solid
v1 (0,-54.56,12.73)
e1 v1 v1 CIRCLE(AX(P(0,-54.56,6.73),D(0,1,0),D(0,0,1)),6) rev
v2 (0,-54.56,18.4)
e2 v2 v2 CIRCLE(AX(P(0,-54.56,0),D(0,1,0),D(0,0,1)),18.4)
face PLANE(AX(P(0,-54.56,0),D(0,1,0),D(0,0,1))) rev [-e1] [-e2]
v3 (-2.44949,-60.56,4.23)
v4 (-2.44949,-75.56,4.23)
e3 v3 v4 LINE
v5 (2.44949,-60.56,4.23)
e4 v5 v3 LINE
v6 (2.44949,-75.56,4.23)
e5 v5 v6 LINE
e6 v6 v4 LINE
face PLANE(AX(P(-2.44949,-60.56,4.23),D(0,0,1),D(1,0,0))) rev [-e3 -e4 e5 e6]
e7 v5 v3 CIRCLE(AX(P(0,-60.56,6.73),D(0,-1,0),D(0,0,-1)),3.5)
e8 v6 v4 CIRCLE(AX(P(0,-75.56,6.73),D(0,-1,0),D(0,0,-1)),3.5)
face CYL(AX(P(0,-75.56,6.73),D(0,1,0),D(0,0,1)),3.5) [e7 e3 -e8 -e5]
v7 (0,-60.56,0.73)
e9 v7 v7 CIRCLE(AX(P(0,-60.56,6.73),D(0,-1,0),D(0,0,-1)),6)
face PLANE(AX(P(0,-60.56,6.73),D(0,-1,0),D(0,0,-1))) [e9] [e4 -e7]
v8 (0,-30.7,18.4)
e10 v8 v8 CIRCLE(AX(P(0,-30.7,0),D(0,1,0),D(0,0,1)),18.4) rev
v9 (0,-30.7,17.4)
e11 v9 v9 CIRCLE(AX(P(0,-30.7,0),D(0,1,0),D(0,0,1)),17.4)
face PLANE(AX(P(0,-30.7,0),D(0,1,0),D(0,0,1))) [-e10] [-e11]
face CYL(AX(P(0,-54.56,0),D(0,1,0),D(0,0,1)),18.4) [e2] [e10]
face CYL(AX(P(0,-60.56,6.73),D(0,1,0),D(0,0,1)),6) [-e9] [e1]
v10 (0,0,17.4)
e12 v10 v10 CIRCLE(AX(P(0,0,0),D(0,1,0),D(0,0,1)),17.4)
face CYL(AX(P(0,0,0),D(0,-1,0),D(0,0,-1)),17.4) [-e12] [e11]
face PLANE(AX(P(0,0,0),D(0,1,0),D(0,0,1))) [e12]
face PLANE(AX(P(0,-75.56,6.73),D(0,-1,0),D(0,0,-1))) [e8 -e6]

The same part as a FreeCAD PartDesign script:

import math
import FreeCAD as App
import Part
import Sketcher

doc = App.newDocument("Part")
params = doc.addObject("Spreadsheet::Sheet", "Params")
for row, (alias, value) in enumerate([
    ("sketch1_diameter", "36.8 mm"),
    ("pad1_length", "54.56 mm"),
    ("sketch2_diameter", "12 mm"),
    ("pad2_length", "6 mm"),
    ("sketch3_diameter", "7 mm"),
    ("pad3_length", "15 mm"),
    ("sketch4_radius", "3.5 mm"),
    ("pocket1_length", "15 mm"),
    ("pocket2_length", "30.7 mm"),
    ("sketch6_diameter", "34.8 mm"),
    ("pad4_length", "30.7 mm"),
], start=1):
    params.set(f"A{row}", alias)
    params.set(f"B{row}", "=" + value)
    params.setAlias(f"B{row}", alias)

body = doc.addObject("PartDesign::Body", "Body")

# Sketch on XZ plane
sketch1 = doc.addObject("Sketcher::SketchObject", "Sketch")
body.addObject(sketch1)
sketch1.AttachmentSupport = (doc.XZ_Plane, [""])
sketch1.MapMode = "FlatFace"
sketch1.addGeometry(Part.Circle(App.Vector(0, 0, 0), App.Vector(0, 0, 1), 18), False)
sketch1.addConstraint(Sketcher.Constraint("Coincident", 0, 3, -1, 1))
sketch1.addConstraint(Sketcher.Constraint("Diameter", 0, 36.8))
sketch1.setExpression("Constraints[1]", "Params.sketch1_diameter")
pad1 = doc.addObject("PartDesign::Pad", "Pad")
body.addObject(pad1)
pad1.Profile = sketch1
pad1.setExpression("Length", "Params.pad1_length")

# Sketch on XZ plane
sketch2 = doc.addObject("Sketcher::SketchObject", "Sketch001")
body.addObject(sketch2)
sketch2.AttachmentSupport = (doc.XZ_Plane, [""])
sketch2.MapMode = "FlatFace"
sketch2.AttachmentOffset = App.Placement(App.Vector(0, 0, 54.56), App.Rotation())
sketch2.addGeometry(Part.Circle(App.Vector(0, 7, 0), App.Vector(0, 0, 1), 6), False)
sketch2.addConstraint(Sketcher.Constraint("PointOnObject", 0, 3, -2))
sketch2.addConstraint(Sketcher.Constraint("Diameter", 0, 12.0))
sketch2.addConstraint(Sketcher.Constraint("DistanceY", -1, 1, 0, 3, 6.73))
sketch2.setExpression("Constraints[1]", "Params.sketch2_diameter")
pad2 = doc.addObject("PartDesign::Pad", "Pad001")
body.addObject(pad2)
pad2.Profile = sketch2
pad2.setExpression("Length", "Params.pad2_length")

# Sketch on XZ plane
sketch3 = doc.addObject("Sketcher::SketchObject", "Sketch002")
body.addObject(sketch3)
sketch3.AttachmentSupport = (doc.XZ_Plane, [""])
sketch3.MapMode = "FlatFace"
sketch3.AttachmentOffset = App.Placement(App.Vector(0, 0, 60.56), App.Rotation())
sketch3.addGeometry(Part.Circle(App.Vector(0, 6.7, 0), App.Vector(0, 0, 1), 3.5), False)
sketch3.addConstraint(Sketcher.Constraint("PointOnObject", 0, 3, -2))
sketch3.addConstraint(Sketcher.Constraint("Diameter", 0, 7.0))
sketch3.addConstraint(Sketcher.Constraint("DistanceY", -1, 1, 0, 3, 6.73))
sketch3.setExpression("Constraints[1]", "Params.sketch3_diameter")
pad3 = doc.addObject("PartDesign::Pad", "Pad002")
body.addObject(pad3)
pad3.Profile = sketch3
pad3.setExpression("Length", "Params.pad3_length")

# Sketch on XZ plane
sketch4 = doc.addObject("Sketcher::SketchObject", "Sketch003")
body.addObject(sketch4)
sketch4.AttachmentSupport = (doc.XZ_Plane, [""])
sketch4.MapMode = "FlatFace"
sketch4.AttachmentOffset = App.Placement(App.Vector(0, 0, 60.56), App.Rotation())
sketch4.addGeometry(Part.LineSegment(App.Vector(2.4, 4.2, 0), App.Vector(-2.4, 4.2, 0)), False)
sketch4.addGeometry(Part.ArcOfCircle(Part.Circle(App.Vector(0, 6.7, 0), App.Vector(0, 0, 1), 3.5), math.radians(-134), math.radians(-46)), False)
sketch4.addConstraint(Sketcher.Constraint("Coincident", 0, 1, 1, 2))
sketch4.addConstraint(Sketcher.Constraint("Coincident", 1, 1, 0, 2))
sketch4.addConstraint(Sketcher.Constraint("Horizontal", 0))
sketch4.addConstraint(Sketcher.Constraint("PointOnObject", 1, 3, -2))
sketch4.addConstraint(Sketcher.Constraint("Radius", 1, 3.5))
sketch4.addConstraint(Sketcher.Constraint("DistanceY", 0, 1, 1, 3, 2.5))
sketch4.addConstraint(Sketcher.Constraint("DistanceY", -1, 1, 1, 3, 6.73))
sketch4.setExpression("Constraints[4]", "Params.sketch4_radius")
pocket1 = doc.addObject("PartDesign::Pocket", "Pocket")
body.addObject(pocket1)
pocket1.Profile = sketch4
pocket1.setExpression("Length", "Params.pocket1_length")
pocket1.Reversed = True

# Sketch on XZ plane
sketch5 = doc.addObject("Sketcher::SketchObject", "Sketch004")
body.addObject(sketch5)
sketch5.AttachmentSupport = (doc.XZ_Plane, [""])
sketch5.MapMode = "FlatFace"
sketch5.addGeometry(Part.Circle(App.Vector(0, 0, 0), App.Vector(0, 0, 1), 18), False)
sketch5.addConstraint(Sketcher.Constraint("Coincident", 0, 3, -1, 1))
sketch5.addConstraint(Sketcher.Constraint("Diameter", 0, 36.856941))
pocket2 = doc.addObject("PartDesign::Pocket", "Pocket001")
body.addObject(pocket2)
pocket2.Profile = sketch5
pocket2.setExpression("Length", "Params.pocket2_length")
pocket2.Reversed = True

# Sketch on XZ plane
sketch6 = doc.addObject("Sketcher::SketchObject", "Sketch005")
body.addObject(sketch6)
sketch6.AttachmentSupport = (doc.XZ_Plane, [""])
sketch6.MapMode = "FlatFace"
sketch6.AttachmentOffset = App.Placement(App.Vector(0, 0, 30.7), App.Rotation())
sketch6.addGeometry(Part.Circle(App.Vector(0, 0, 0), App.Vector(0, 0, 1), 17), False)
sketch6.addConstraint(Sketcher.Constraint("Coincident", 0, 3, -1, 1))
sketch6.addConstraint(Sketcher.Constraint("Diameter", 0, 34.8))
sketch6.setExpression("Constraints[1]", "Params.sketch6_diameter")
pad4 = doc.addObject("PartDesign::Pad", "Pad003")
body.addObject(pad4)
pad4.Profile = sketch6
pad4.setExpression("Length", "Params.pad4_length")
pad4.Reversed = True

doc.recompute()
